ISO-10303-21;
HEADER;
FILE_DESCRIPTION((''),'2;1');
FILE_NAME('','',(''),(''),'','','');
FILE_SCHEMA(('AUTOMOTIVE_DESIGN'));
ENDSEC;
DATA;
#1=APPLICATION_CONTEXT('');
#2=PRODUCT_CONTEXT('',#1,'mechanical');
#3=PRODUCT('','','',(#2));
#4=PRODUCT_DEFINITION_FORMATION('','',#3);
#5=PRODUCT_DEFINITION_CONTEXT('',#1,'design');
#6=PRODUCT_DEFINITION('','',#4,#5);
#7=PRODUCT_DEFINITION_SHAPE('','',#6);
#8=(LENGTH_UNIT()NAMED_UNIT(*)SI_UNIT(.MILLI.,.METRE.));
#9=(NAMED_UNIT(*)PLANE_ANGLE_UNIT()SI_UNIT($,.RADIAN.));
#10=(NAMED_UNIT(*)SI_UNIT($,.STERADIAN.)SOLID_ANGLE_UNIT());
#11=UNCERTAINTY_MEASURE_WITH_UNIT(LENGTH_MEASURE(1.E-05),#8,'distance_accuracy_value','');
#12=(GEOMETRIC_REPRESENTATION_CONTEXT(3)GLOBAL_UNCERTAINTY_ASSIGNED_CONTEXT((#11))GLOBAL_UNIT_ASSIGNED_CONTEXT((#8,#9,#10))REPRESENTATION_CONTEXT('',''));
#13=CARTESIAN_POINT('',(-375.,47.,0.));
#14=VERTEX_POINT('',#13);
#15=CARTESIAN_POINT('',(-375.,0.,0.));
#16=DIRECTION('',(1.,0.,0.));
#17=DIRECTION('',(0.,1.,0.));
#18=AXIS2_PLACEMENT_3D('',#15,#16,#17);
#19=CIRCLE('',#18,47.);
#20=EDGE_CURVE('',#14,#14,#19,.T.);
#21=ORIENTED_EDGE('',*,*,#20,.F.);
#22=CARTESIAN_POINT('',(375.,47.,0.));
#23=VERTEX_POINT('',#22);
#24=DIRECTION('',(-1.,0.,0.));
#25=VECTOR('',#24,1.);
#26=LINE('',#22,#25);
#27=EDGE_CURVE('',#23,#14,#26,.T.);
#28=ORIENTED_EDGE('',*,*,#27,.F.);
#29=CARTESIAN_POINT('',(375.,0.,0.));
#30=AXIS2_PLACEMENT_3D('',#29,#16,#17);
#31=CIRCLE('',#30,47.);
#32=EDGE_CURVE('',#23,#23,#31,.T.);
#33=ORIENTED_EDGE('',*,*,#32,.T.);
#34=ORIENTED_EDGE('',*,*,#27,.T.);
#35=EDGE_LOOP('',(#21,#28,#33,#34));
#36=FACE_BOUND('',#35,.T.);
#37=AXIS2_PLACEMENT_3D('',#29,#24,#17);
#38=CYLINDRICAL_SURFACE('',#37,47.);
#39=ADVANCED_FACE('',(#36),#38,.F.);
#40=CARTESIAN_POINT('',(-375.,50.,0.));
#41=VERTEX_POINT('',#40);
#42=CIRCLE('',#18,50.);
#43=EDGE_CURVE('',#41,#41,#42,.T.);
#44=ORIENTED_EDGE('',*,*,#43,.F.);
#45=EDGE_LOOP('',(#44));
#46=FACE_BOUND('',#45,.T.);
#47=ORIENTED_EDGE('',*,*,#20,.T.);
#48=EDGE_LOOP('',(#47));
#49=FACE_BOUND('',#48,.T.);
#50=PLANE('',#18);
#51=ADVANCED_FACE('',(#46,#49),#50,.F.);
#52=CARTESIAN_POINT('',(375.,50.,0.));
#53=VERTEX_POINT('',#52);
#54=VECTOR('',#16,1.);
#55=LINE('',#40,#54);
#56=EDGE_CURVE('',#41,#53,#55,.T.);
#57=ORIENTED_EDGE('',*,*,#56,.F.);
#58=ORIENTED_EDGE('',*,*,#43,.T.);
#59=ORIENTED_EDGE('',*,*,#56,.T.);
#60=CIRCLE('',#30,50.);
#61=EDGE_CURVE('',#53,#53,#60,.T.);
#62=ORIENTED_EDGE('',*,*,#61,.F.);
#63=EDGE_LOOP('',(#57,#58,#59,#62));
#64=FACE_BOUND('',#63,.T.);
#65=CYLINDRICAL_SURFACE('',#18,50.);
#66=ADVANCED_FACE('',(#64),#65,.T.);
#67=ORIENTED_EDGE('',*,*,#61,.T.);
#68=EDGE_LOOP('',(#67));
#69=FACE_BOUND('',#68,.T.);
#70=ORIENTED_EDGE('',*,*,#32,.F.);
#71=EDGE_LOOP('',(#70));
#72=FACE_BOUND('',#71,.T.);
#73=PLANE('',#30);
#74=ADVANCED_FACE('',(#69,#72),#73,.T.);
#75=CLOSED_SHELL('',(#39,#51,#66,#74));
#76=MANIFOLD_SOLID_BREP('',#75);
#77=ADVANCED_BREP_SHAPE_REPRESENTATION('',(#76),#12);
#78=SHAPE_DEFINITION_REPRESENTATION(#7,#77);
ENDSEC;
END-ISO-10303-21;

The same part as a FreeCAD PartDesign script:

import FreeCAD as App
import Part
import Sketcher


def add_polygon(sketch, points):
    """Adds a closed chain of lines whose ends are joined by coincident constraints."""
    first, n = sketch.GeometryCount, len(points)
    for a, b in zip(points, points[1:] + points[:1]):
        sketch.addGeometry(Part.LineSegment(App.Vector(*a, 0), App.Vector(*b, 0)), False)
    for i in range(n):
        sketch.addConstraint(Sketcher.Constraint("Coincident", first + i, 2, first + (i + 1) % n, 1))

doc = App.newDocument("Part")
body = doc.addObject("PartDesign::Body", "Body")

# Sketch on XY plane
sketch1 = body.newObject("Sketcher::SketchObject", "Sketch")
sketch1.AttachmentSupport = (doc.getObject("XY_Plane"), [""])
sketch1.MapMode = "FlatFace"
add_polygon(sketch1, [(375, 50), (-375, 50), (-375, 47), (375, 47)])  # lines 0-3
sketch1.addConstraint([
    Sketcher.Constraint("Horizontal", 0),
    Sketcher.Constraint("Vertical", 1),
    Sketcher.Constraint("Horizontal", 2),
    Sketcher.Constraint("Vertical", 3),
    Sketcher.Constraint("DistanceX", 0, 2, 0, 1, 750.0),
    Sketcher.Constraint("DistanceY", 1, 2, 1, 1, 3.0),
    Sketcher.Constraint("DistanceY", -1, 1, 0, 2, 50.0),
    Sketcher.Constraint("DistanceX", 0, 2, -1, 1, 375.0),
])
revolution = body.newObject("PartDesign::Revolution", "Revolution")
revolution.Profile = sketch1
revolution.ReferenceAxis = (sketch1, ["H_Axis"])
revolution.Angle = 360

doc.recompute()
